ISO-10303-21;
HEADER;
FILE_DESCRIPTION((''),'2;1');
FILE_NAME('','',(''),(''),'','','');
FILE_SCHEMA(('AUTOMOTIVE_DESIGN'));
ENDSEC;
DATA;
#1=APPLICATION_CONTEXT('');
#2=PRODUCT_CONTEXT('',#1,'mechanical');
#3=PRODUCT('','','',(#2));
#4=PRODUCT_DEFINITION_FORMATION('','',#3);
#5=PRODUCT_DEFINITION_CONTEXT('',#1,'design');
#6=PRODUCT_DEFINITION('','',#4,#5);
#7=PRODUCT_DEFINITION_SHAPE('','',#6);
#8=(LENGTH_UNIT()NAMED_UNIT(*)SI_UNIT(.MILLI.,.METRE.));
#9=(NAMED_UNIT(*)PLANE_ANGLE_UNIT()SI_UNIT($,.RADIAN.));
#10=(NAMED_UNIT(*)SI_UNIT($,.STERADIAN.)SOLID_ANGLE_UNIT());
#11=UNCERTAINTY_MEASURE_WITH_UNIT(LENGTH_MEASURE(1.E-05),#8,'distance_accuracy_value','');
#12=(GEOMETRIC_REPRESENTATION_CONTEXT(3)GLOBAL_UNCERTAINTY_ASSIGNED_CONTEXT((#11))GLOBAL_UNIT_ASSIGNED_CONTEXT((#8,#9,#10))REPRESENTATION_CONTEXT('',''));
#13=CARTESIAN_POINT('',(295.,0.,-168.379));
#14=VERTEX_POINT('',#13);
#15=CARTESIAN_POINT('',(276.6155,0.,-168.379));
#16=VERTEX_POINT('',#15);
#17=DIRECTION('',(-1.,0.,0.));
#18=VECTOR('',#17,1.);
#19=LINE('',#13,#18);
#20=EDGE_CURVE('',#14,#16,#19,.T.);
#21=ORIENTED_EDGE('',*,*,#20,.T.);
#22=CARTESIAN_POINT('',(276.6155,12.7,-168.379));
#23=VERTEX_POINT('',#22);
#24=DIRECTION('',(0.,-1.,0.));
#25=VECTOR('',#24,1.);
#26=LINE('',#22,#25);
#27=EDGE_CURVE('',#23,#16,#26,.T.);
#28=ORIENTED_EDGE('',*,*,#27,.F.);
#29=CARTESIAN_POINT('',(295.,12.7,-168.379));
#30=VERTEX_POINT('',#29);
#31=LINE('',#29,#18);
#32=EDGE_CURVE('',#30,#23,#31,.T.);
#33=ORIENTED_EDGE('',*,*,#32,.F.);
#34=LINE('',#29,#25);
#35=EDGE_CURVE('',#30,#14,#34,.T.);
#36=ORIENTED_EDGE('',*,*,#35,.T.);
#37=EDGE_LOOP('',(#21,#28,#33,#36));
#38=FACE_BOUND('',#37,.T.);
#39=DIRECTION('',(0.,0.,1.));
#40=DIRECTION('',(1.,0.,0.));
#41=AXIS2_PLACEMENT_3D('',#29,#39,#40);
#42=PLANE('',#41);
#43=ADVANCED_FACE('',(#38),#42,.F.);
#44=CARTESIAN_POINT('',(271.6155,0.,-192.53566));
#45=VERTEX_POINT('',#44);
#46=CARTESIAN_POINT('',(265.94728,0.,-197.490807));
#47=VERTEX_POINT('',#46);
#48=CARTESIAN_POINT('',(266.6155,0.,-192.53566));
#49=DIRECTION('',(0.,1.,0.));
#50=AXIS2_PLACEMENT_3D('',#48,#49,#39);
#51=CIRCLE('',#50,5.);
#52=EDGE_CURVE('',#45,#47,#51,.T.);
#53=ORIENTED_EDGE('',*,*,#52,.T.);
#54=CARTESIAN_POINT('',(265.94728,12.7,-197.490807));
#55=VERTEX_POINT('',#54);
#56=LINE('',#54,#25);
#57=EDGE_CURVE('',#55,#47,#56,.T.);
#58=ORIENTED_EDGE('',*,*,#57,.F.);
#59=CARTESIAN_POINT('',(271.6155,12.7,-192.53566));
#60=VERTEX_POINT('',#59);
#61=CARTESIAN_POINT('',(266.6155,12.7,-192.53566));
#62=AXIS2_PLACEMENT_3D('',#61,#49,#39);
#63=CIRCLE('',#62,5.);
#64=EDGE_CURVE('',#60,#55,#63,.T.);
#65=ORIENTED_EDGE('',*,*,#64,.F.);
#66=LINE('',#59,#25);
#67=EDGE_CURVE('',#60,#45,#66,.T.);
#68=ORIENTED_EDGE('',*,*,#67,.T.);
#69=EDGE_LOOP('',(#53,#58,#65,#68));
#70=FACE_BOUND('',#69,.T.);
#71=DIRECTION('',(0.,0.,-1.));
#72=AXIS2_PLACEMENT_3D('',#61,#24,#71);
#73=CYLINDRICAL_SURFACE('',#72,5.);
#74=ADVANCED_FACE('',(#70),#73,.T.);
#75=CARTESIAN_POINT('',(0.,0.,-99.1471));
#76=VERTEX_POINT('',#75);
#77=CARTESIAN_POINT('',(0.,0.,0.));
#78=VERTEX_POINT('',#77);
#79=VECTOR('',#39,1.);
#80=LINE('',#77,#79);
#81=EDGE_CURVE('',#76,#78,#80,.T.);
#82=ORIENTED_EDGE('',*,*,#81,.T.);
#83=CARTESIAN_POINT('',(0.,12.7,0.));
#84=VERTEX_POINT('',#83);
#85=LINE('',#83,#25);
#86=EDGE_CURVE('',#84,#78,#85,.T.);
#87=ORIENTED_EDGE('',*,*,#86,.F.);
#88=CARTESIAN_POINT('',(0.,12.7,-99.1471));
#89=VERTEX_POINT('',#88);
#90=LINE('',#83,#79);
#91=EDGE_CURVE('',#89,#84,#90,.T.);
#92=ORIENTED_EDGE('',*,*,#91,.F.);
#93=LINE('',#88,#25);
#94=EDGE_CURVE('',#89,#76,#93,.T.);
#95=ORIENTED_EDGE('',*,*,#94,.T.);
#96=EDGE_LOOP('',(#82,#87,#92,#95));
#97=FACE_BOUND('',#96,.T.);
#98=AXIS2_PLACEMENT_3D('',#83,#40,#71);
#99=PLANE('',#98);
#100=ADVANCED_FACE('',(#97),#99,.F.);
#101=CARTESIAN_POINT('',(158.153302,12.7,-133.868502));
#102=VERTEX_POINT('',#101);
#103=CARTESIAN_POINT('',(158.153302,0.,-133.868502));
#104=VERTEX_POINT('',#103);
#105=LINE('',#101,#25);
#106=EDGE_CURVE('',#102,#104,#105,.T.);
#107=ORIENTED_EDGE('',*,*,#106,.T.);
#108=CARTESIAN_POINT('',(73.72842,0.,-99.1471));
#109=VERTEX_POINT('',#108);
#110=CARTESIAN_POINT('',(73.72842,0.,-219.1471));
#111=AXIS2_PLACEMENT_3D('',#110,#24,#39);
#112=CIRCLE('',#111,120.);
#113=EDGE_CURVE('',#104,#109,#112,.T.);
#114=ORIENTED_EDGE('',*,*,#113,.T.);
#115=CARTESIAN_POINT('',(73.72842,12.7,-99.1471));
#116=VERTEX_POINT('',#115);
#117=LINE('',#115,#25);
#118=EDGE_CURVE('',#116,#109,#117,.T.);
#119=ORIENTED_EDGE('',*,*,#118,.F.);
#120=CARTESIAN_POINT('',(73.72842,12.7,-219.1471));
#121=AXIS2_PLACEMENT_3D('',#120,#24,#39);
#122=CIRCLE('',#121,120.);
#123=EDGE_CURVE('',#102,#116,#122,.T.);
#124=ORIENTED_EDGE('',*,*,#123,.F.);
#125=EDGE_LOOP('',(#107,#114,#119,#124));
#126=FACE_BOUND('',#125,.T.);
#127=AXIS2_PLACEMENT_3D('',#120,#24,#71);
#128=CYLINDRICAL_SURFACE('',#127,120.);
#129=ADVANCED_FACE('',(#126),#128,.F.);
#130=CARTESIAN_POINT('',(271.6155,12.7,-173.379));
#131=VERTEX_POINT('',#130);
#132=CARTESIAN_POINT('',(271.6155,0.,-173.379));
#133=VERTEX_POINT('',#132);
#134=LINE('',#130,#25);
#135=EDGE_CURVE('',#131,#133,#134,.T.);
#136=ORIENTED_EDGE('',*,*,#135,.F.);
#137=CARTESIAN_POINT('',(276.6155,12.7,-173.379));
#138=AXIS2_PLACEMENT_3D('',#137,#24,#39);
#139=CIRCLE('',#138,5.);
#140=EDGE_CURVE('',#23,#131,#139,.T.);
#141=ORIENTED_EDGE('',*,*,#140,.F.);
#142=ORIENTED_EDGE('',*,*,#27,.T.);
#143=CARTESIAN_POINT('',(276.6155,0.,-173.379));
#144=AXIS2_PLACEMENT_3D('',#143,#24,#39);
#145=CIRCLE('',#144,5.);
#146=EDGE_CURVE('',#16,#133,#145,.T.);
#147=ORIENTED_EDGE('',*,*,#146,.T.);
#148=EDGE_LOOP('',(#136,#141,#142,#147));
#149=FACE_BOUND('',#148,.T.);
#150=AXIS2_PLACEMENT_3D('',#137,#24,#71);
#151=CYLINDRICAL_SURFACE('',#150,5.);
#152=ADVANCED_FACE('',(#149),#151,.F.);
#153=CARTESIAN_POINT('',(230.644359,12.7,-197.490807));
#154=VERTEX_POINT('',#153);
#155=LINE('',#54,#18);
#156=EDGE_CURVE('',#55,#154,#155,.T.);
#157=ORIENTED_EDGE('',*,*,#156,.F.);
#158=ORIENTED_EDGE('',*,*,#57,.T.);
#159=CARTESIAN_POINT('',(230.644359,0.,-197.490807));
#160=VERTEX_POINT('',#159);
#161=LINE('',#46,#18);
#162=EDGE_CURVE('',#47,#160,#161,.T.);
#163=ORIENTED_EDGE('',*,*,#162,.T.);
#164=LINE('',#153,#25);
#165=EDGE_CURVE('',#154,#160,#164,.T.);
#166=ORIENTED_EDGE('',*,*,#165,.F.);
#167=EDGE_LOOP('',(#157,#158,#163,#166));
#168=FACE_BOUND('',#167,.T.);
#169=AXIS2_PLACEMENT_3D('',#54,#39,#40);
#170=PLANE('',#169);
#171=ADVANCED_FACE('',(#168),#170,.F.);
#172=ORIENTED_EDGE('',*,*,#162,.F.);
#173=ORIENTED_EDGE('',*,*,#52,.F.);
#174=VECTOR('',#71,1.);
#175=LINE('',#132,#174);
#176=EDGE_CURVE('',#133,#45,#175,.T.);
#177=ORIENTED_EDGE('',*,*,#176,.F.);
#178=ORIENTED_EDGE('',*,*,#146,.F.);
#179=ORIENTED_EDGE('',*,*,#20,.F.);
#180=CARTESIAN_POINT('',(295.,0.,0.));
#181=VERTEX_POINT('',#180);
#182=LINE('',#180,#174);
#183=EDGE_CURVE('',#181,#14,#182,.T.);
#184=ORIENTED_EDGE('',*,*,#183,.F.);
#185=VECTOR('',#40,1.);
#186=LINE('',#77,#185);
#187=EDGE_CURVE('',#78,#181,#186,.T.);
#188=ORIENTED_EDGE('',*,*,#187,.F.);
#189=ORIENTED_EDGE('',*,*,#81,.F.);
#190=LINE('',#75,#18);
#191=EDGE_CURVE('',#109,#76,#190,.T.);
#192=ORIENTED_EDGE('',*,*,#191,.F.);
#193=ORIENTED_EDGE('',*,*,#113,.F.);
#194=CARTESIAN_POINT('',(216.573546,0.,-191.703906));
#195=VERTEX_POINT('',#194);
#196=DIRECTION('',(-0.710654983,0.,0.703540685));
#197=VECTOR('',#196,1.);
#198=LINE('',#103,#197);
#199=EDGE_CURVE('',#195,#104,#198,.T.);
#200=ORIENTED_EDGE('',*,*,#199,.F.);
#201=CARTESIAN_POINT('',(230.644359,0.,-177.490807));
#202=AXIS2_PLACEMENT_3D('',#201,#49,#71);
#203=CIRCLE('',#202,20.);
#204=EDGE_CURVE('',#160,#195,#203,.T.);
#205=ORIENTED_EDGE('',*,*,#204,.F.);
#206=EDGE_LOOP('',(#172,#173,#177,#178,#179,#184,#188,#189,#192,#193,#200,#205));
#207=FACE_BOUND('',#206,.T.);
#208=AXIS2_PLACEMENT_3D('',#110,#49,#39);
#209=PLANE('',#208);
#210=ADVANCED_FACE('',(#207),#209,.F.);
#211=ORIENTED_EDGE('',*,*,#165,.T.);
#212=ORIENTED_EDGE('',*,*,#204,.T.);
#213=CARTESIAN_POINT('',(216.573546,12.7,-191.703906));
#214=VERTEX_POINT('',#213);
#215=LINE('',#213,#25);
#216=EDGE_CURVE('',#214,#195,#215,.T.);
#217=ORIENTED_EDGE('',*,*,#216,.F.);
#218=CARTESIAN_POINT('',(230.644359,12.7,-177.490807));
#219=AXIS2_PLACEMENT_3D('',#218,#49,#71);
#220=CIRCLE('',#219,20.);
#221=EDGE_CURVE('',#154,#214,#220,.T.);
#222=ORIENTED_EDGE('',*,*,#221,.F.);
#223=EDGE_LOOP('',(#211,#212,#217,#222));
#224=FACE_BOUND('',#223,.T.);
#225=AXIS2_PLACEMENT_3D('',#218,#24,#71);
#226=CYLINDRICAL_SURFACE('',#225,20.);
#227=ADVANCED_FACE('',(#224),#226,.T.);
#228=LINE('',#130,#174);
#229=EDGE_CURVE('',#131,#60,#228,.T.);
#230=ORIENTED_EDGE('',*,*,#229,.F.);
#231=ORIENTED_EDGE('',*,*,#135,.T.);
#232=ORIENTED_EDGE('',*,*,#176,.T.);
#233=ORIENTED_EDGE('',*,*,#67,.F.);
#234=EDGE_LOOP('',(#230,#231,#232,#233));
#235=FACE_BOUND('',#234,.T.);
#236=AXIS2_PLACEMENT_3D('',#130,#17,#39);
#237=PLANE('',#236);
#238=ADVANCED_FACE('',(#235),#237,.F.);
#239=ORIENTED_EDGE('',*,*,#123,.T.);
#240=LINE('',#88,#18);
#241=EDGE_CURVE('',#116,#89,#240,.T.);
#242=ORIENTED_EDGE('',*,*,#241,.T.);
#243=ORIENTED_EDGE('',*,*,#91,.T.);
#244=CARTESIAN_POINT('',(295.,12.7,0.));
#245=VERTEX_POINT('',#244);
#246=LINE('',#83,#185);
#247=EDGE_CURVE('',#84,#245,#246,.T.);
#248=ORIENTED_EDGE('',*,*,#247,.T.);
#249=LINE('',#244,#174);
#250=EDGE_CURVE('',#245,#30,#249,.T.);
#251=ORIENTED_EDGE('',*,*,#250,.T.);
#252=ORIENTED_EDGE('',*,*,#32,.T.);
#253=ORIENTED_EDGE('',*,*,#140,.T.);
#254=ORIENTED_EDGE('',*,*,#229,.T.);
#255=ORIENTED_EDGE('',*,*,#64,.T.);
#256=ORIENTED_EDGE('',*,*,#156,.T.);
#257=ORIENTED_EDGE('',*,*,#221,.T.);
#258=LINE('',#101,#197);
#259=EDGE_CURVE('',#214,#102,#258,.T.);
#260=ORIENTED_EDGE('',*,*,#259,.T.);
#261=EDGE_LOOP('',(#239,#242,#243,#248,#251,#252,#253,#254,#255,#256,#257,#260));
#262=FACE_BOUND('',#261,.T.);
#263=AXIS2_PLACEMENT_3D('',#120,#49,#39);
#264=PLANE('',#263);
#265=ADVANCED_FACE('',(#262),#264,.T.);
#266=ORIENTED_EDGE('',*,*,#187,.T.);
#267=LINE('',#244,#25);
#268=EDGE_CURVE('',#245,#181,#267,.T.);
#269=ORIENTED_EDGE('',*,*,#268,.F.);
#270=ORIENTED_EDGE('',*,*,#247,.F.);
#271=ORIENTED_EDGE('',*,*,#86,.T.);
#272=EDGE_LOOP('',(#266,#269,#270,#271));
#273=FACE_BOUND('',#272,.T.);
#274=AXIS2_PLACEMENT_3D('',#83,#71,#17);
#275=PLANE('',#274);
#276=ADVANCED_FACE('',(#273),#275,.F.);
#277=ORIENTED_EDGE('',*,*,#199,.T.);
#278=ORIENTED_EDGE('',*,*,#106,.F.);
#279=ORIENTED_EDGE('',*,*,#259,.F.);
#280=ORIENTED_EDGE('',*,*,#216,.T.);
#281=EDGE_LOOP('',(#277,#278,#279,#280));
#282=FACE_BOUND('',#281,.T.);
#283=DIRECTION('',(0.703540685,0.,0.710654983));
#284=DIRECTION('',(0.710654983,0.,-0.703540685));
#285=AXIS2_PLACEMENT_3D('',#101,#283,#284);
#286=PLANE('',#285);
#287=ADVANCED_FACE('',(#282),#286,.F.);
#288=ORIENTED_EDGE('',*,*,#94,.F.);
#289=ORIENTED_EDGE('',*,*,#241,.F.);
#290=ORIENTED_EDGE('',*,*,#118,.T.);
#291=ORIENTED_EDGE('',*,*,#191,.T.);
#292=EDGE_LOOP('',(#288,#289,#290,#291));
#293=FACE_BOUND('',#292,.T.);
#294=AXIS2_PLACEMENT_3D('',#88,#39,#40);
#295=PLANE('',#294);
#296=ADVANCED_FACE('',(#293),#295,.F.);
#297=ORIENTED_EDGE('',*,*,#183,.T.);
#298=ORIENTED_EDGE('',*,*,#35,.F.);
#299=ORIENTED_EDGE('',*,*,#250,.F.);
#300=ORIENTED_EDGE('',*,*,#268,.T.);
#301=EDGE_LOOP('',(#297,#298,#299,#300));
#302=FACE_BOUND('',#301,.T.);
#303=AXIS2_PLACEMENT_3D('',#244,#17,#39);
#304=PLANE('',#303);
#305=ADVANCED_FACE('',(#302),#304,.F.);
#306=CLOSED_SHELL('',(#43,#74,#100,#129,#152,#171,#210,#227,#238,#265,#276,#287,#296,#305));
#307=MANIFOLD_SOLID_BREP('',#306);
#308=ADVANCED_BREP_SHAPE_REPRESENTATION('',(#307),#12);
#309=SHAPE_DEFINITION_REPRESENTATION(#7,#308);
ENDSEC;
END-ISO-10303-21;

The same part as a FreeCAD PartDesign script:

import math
import FreeCAD as App
import Part
import Sketcher
from FreeCAD import Vector
Q = App.Units.Quantity

doc = App.newDocument("Part")
body = doc.addObject("PartDesign::Body", "Body")

# Sketch on XZ plane
sketch1 = body.newObject("Sketcher::SketchObject", "Sketch")
sketch1.AttachmentSupport = (doc.getObject("XZ_Plane"), [""])
sketch1.MapMode = "FlatFace"
sketch1.addGeometry([
    Part.LineSegment(Vector(0, 0, 0), Vector(295, 0, 0)),  # 0
    Part.LineSegment(Vector(295, 0, 0), Vector(295, -168.379, 0)),  # 1
    Part.LineSegment(Vector(295, -168.379, 0), Vector(276.6155, -168.379, 0)),  # 2
    Part.ArcOfCircle(Part.Circle(Vector(276.6155, -173.379, 0), Vector(0, 0, 1), 5), math.radians(90), math.radians(180)),  # 3
    Part.LineSegment(Vector(271.6155, -173.379, 0), Vector(271.6155, -192.53566, 0)),  # 4
    Part.ArcOfCircle(Part.Circle(Vector(266.6155, -192.53566, 0), Vector(0, 0, 1), 5), math.radians(-97.68022), math.radians(0)),  # 5
    Part.LineSegment(Vector(265.94728, -197.490807, 0), Vector(230.644359, -197.490807, 0)),  # 6
    Part.ArcOfCircle(Part.Circle(Vector(230.644359, -177.490807, 0), Vector(0, 0, 1), 20), math.radians(-134.711768), math.radians(-90)),  # 7
    Part.LineSegment(Vector(216.573546, -191.703906, 0), Vector(158.153302, -133.868502, 0)),  # 8
    Part.ArcOfCircle(Part.Circle(Vector(73.72842, -219.1471, 0), Vector(0, 0, 1), 120), math.radians(45.288232), math.radians(90)),  # 9
    Part.LineSegment(Vector(73.72842, -99.1471, 0), Vector(0, -99.1471, 0)),  # 10
    Part.LineSegment(Vector(0, -99.1471, 0), Vector(0, 0, 0)),  # 11
], False)
sketch1.addConstraint([
    Sketcher.Constraint("Coincident", 0, 2, 1, 1),
    Sketcher.Constraint("Coincident", 1, 2, 2, 1),
    Sketcher.Constraint("Tangent", 2, 2, 3, 1),
    Sketcher.Constraint("Tangent", 3, 2, 4, 1),
    Sketcher.Constraint("Tangent", 4, 2, 5, 2),
    Sketcher.Constraint("Coincident", 5, 1, 6, 1),
    Sketcher.Constraint("Tangent", 6, 2, 7, 2),
    Sketcher.Constraint("Tangent", 7, 1, 8, 1),
    Sketcher.Constraint("Tangent", 8, 2, 9, 1),
    Sketcher.Constraint("Tangent", 9, 2, 10, 1),
    Sketcher.Constraint("Coincident", 10, 2, 11, 1),
    Sketcher.Constraint("Coincident", 11, 2, 0, 1),
    Sketcher.Constraint("Horizontal", 0),
    Sketcher.Constraint("Vertical", 1),
    Sketcher.Constraint("Horizontal", 2),
    Sketcher.Constraint("Vertical", 4),
    Sketcher.Constraint("Horizontal", 6),
    Sketcher.Constraint("Horizontal", 10),
    Sketcher.Constraint("Vertical", 11),
    Sketcher.Constraint("Coincident", 11, 2, -1, 1),
    Sketcher.Constraint("Equal", 3, 5),
    Sketcher.Constraint("Radius", 3, Q("5 mm")),
    Sketcher.Constraint("Radius", 7, Q("20 mm")),
    Sketcher.Constraint("Radius", 9, Q("120 mm")),
    Sketcher.Constraint("DistanceX", 0, 1, 0, 2, Q("295 mm")),
    Sketcher.Constraint("DistanceY", 1, 2, 1, 1, Q("168.379 mm")),
    Sketcher.Constraint("DistanceX", 2, 2, 2, 1, Q("18.3845 mm")),
    Sketcher.Constraint("DistanceY", 11, 1, 11, 2, Q("99.1471 mm")),
    Sketcher.Constraint("DistanceX", 6, 2, 6, 1, Q("35.30292 mm")),
    Sketcher.Constraint("DistanceX", 10, 2, 10, 1, Q("73.72842 mm")),
    Sketcher.Constraint("DistanceY", 4, 2, 4, 1, Q("19.15666 mm")),
    Sketcher.Constraint("DistanceX", -1, 1, 8, 2, Q("158.153302 mm")),
])
pad1 = body.newObject("PartDesign::Pad", "Pad")
pad1.Profile = sketch1
pad1.Length = 12.7
pad1.Reversed = True

doc.recompute()
